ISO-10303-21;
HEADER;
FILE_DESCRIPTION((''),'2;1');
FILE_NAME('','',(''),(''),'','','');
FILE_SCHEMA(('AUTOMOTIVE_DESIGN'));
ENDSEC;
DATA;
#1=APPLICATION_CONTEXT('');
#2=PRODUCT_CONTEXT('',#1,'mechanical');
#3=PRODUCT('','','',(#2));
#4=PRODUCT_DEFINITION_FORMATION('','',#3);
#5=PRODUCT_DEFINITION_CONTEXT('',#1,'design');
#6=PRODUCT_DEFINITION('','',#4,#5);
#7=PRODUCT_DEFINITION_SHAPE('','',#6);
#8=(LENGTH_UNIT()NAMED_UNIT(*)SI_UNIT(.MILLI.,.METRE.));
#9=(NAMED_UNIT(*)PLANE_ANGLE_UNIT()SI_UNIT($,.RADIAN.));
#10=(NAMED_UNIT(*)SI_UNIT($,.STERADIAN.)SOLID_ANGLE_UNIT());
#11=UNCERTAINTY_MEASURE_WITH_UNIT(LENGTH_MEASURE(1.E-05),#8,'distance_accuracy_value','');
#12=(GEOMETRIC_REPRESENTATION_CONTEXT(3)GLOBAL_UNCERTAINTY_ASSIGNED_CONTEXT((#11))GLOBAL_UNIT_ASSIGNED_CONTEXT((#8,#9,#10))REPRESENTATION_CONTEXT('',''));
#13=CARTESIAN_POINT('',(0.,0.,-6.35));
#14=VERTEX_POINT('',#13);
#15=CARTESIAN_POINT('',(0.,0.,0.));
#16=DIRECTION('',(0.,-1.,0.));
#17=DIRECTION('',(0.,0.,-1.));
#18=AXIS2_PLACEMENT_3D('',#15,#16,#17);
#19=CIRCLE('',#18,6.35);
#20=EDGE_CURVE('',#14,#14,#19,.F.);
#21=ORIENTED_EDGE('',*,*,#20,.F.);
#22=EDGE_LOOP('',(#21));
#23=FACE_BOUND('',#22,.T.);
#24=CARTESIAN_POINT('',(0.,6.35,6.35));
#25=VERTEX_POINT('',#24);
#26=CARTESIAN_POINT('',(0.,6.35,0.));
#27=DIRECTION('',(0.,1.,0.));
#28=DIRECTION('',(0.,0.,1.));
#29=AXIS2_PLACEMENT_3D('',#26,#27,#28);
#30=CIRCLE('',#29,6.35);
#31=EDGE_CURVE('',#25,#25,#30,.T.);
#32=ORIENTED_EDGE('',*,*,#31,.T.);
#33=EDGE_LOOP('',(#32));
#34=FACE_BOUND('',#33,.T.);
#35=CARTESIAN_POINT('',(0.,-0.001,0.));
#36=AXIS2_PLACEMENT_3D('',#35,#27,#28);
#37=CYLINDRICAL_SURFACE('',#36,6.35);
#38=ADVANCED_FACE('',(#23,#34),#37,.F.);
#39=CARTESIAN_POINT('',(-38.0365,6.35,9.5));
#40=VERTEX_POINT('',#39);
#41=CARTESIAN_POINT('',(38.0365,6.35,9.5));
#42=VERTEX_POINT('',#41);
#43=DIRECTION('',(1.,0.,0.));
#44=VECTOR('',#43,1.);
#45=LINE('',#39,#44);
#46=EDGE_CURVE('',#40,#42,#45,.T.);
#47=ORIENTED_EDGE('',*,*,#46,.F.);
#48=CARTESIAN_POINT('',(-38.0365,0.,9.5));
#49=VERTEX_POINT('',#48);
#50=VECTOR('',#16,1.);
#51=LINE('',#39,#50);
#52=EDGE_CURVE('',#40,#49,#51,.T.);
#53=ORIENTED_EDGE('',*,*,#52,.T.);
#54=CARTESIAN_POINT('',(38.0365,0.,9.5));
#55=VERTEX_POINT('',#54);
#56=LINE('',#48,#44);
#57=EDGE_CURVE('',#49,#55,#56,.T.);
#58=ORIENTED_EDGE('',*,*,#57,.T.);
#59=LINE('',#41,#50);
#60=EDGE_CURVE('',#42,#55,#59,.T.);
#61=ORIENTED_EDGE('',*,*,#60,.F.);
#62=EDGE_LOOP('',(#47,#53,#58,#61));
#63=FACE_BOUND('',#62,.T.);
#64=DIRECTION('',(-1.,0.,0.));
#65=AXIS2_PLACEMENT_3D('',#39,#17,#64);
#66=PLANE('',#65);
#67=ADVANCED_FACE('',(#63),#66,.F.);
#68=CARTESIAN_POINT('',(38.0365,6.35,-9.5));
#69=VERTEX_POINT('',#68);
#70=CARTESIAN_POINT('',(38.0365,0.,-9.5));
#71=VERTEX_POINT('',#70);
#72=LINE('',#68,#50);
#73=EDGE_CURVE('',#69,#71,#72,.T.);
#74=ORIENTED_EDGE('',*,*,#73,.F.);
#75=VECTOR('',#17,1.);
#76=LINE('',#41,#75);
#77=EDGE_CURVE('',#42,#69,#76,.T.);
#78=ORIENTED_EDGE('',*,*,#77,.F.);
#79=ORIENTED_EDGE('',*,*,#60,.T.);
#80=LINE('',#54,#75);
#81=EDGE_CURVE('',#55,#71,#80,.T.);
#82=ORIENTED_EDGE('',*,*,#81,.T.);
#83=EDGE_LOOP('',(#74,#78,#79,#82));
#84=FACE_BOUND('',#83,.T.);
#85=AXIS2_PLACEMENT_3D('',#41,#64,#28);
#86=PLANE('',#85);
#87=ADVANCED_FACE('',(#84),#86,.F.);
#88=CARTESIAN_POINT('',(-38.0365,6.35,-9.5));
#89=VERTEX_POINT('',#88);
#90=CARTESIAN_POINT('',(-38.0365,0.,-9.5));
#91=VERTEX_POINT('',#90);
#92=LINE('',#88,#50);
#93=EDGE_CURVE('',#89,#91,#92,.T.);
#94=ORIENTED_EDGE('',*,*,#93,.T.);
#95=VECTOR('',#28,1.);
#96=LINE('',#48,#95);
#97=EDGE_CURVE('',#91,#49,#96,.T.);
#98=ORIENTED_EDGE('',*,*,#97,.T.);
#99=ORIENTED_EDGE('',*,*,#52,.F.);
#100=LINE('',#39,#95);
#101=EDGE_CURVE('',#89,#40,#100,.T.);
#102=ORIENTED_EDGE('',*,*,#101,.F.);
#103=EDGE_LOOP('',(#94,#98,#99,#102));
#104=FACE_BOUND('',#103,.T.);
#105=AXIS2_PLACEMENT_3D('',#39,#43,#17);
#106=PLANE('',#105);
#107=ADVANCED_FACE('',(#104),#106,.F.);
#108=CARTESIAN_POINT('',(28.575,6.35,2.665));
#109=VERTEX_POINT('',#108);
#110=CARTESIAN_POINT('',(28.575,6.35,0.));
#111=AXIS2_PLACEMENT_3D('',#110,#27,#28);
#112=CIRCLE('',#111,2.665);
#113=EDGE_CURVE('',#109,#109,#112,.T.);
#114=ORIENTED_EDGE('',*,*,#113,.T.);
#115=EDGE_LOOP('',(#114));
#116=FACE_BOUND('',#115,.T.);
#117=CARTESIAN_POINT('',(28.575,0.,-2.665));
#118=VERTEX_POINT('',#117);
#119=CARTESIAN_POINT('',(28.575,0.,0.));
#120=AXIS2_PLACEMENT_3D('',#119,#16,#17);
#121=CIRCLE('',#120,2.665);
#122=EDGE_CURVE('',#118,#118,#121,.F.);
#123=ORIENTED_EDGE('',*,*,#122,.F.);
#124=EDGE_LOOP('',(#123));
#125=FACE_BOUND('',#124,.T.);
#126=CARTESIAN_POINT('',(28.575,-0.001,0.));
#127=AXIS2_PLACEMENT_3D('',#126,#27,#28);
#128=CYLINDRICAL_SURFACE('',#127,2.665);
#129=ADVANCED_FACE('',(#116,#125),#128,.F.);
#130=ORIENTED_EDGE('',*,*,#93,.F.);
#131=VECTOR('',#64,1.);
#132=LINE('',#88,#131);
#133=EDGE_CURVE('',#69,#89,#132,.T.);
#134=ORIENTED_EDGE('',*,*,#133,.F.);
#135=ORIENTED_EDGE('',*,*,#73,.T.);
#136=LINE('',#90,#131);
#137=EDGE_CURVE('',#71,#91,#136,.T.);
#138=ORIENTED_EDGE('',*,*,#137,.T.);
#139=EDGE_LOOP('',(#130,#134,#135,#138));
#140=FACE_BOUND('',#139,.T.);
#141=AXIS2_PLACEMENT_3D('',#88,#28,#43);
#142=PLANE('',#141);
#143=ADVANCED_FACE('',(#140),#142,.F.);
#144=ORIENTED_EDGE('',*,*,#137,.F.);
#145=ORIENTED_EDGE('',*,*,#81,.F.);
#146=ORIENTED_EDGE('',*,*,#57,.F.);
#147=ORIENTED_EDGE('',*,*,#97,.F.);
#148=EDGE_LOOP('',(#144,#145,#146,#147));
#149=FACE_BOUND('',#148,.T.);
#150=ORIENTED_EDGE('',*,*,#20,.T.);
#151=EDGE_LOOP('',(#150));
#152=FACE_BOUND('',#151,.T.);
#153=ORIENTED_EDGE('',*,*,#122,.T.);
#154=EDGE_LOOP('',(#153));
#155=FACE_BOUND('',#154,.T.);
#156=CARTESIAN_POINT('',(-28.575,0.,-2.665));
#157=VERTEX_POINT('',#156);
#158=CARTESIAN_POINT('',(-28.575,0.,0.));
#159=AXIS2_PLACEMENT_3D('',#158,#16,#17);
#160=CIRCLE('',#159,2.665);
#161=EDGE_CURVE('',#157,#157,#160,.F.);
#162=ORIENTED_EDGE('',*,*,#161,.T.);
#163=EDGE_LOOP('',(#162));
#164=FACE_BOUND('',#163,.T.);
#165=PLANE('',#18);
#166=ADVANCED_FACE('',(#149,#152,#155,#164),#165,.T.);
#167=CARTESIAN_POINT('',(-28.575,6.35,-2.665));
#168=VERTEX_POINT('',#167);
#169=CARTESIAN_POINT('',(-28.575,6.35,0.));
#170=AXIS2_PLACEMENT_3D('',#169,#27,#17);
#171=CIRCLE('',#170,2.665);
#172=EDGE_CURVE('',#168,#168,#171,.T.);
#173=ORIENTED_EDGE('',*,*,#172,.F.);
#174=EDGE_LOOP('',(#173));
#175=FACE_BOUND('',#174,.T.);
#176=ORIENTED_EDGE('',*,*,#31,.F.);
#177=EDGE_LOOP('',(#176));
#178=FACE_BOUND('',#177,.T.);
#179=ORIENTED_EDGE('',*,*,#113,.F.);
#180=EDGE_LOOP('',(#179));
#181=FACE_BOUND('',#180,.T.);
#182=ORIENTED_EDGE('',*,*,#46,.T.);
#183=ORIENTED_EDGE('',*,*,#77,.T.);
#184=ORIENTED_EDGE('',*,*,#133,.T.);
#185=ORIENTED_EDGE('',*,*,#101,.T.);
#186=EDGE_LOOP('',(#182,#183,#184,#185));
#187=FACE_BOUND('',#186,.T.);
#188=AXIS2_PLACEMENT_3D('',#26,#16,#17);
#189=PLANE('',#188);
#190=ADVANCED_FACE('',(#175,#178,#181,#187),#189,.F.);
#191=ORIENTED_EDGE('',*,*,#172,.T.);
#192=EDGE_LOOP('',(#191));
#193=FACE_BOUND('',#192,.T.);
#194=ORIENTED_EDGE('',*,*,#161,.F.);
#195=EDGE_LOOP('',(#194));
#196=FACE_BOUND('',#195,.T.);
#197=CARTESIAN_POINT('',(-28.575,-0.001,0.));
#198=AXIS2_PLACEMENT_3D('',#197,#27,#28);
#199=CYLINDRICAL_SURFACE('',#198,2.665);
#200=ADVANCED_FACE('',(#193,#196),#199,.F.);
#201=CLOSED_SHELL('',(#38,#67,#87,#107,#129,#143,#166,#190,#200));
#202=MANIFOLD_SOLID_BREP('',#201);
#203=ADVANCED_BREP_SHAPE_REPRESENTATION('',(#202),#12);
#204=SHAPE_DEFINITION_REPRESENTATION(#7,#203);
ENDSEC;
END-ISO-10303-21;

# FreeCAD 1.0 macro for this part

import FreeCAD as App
import Part
import Sketcher
Q = App.Units.Quantity

doc = App.newDocument("Part")
params = doc.addObject("Spreadsheet::Sheet", "Params")
for row, (alias, value) in enumerate([
    ("sketch1_width", "2.995 in"),
    ("pad1_length", "0.25 in"),
    ("sketch2_diameter", "0.5 in"),
], start=1):
    params.set(f"A{row}", alias)
    params.set(f"B{row}", "=" + value)
    params.setAlias(f"B{row}", alias)

body = doc.addObject("PartDesign::Body", "Body")

# Sketch on XZ plane
sketch1 = body.newObject("Sketcher::SketchObject", "Sketch")
sketch1.AttachmentSupport = (doc.getObject("XZ_Plane"), [""])
sketch1.MapMode = "FlatFace"
sketch1.addGeometry([
    Part.LineSegment(App.Vector(-38.0365, -9.5, 0), App.Vector(-38.0365, 9.5, 0)),
    Part.LineSegment(App.Vector(-38.0365, 9.5, 0), App.Vector(38.0365, 9.5, 0)),
    Part.LineSegment(App.Vector(38.0365, 9.5, 0), App.Vector(38.0365, -9.5, 0)),
    Part.LineSegment(App.Vector(38.0365, -9.5, 0), App.Vector(-38.0365, -9.5, 0)),
], False)
sketch1.addConstraint([
    Sketcher.Constraint("Coincident", 0, 2, 1, 1),
    Sketcher.Constraint("Coincident", 1, 2, 2, 1),
    Sketcher.Constraint("Coincident", 2, 2, 3, 1),
    Sketcher.Constraint("Coincident", 3, 2, 0, 1),
    Sketcher.Constraint("Vertical", 0),
    Sketcher.Constraint("Horizontal", 1),
    Sketcher.Constraint("Vertical", 2),
    Sketcher.Constraint("Horizontal", 3),
    Sketcher.Constraint("Symmetric", 0, 2, 2, 2, -1, 1),
    Sketcher.Constraint("DistanceX", 1, 1, 1, 2, Q("2.995 in")),
    Sketcher.Constraint("DistanceY", 0, 1, 0, 2, 19.0),
])
sketch1.setExpression("Constraints[9]", "Params.sketch1_width")
pad1 = body.newObject("PartDesign::Pad", "Pad")
pad1.Profile = sketch1
pad1.setExpression("Length", "Params.pad1_length")
pad1.Reversed = True

# Sketch on XZ plane
sketch2 = body.newObject("Sketcher::SketchObject", "Sketch001")
sketch2.AttachmentSupport = (doc.getObject("XZ_Plane"), [""])
sketch2.MapMode = "FlatFace"
sketch2.AttachmentOffset = App.Placement(App.Vector(0, 0, -0.25 * 25.4), App.Rotation())
sketch2.addGeometry(Part.Circle(App.Vector(0, 0, 0), App.Vector(0, 0, 1), 6.35), False)
sketch2.addConstraint([
    Sketcher.Constraint("Coincident", 0, 3, -1, 1),
    Sketcher.Constraint("Diameter", 0, Q("0.5 in")),
])
sketch2.setExpression("Constraints[1]", "Params.sketch2_diameter")
pocket1 = body.newObject("PartDesign::Pocket", "Pocket")
pocket1.Profile = sketch2
pocket1.Type = "UpToFirst"
pocket1.Reversed = True

# Sketch on XZ plane
sketch3 = body.newObject("Sketcher::SketchObject", "Sketch002")
sketch3.AttachmentSupport = (doc.getObject("XZ_Plane"), [""])
sketch3.MapMode = "FlatFace"
sketch3.AttachmentOffset = App.Placement(App.Vector(0, 0, -0.25 * 25.4), App.Rotation())
sketch3.addGeometry(Part.Circle(App.Vector(28.575, 0, 0), App.Vector(0, 0, 1), 2.665), False)
sketch3.addConstraint([
    Sketcher.Constraint("PointOnObject", 0, 3, -1),
    Sketcher.Constraint("Diameter", 0, 5.33),
    Sketcher.Constraint("DistanceX", -1, 1, 0, 3, Q("1.125 in")),
])
pocket2 = body.newObject("PartDesign::Pocket", "Pocket001")
pocket2.Profile = sketch3
pocket2.Type = "UpToFirst"
pocket2.Reversed = True

# Sketch on XZ plane
sketch4 = body.newObject("Sketcher::SketchObject", "Sketch003")
sketch4.AttachmentSupport = (doc.getObject("XZ_Plane"), [""])
sketch4.MapMode = "FlatFace"
sketch4.AttachmentOffset = App.Placement(App.Vector(0, 0, -0.25 * 25.4), App.Rotation())
sketch4.addGeometry(Part.Circle(App.Vector(-28.575, 0, 0), App.Vector(0, 0, 1), 2.665), False)
sketch4.addConstraint([
    Sketcher.Constraint("PointOnObject", 0, 3, -1),
    Sketcher.Constraint("Diameter", 0, 5.33),
    Sketcher.Constraint("DistanceX", 0, 3, -1, 1, Q("1.125 in")),
])
pocket3 = body.newObject("PartDesign::Pocket", "Pocket002")
pocket3.Profile = sketch4
pocket3.Type = "UpToFirst"
pocket3.Reversed = True

doc.recompute()
